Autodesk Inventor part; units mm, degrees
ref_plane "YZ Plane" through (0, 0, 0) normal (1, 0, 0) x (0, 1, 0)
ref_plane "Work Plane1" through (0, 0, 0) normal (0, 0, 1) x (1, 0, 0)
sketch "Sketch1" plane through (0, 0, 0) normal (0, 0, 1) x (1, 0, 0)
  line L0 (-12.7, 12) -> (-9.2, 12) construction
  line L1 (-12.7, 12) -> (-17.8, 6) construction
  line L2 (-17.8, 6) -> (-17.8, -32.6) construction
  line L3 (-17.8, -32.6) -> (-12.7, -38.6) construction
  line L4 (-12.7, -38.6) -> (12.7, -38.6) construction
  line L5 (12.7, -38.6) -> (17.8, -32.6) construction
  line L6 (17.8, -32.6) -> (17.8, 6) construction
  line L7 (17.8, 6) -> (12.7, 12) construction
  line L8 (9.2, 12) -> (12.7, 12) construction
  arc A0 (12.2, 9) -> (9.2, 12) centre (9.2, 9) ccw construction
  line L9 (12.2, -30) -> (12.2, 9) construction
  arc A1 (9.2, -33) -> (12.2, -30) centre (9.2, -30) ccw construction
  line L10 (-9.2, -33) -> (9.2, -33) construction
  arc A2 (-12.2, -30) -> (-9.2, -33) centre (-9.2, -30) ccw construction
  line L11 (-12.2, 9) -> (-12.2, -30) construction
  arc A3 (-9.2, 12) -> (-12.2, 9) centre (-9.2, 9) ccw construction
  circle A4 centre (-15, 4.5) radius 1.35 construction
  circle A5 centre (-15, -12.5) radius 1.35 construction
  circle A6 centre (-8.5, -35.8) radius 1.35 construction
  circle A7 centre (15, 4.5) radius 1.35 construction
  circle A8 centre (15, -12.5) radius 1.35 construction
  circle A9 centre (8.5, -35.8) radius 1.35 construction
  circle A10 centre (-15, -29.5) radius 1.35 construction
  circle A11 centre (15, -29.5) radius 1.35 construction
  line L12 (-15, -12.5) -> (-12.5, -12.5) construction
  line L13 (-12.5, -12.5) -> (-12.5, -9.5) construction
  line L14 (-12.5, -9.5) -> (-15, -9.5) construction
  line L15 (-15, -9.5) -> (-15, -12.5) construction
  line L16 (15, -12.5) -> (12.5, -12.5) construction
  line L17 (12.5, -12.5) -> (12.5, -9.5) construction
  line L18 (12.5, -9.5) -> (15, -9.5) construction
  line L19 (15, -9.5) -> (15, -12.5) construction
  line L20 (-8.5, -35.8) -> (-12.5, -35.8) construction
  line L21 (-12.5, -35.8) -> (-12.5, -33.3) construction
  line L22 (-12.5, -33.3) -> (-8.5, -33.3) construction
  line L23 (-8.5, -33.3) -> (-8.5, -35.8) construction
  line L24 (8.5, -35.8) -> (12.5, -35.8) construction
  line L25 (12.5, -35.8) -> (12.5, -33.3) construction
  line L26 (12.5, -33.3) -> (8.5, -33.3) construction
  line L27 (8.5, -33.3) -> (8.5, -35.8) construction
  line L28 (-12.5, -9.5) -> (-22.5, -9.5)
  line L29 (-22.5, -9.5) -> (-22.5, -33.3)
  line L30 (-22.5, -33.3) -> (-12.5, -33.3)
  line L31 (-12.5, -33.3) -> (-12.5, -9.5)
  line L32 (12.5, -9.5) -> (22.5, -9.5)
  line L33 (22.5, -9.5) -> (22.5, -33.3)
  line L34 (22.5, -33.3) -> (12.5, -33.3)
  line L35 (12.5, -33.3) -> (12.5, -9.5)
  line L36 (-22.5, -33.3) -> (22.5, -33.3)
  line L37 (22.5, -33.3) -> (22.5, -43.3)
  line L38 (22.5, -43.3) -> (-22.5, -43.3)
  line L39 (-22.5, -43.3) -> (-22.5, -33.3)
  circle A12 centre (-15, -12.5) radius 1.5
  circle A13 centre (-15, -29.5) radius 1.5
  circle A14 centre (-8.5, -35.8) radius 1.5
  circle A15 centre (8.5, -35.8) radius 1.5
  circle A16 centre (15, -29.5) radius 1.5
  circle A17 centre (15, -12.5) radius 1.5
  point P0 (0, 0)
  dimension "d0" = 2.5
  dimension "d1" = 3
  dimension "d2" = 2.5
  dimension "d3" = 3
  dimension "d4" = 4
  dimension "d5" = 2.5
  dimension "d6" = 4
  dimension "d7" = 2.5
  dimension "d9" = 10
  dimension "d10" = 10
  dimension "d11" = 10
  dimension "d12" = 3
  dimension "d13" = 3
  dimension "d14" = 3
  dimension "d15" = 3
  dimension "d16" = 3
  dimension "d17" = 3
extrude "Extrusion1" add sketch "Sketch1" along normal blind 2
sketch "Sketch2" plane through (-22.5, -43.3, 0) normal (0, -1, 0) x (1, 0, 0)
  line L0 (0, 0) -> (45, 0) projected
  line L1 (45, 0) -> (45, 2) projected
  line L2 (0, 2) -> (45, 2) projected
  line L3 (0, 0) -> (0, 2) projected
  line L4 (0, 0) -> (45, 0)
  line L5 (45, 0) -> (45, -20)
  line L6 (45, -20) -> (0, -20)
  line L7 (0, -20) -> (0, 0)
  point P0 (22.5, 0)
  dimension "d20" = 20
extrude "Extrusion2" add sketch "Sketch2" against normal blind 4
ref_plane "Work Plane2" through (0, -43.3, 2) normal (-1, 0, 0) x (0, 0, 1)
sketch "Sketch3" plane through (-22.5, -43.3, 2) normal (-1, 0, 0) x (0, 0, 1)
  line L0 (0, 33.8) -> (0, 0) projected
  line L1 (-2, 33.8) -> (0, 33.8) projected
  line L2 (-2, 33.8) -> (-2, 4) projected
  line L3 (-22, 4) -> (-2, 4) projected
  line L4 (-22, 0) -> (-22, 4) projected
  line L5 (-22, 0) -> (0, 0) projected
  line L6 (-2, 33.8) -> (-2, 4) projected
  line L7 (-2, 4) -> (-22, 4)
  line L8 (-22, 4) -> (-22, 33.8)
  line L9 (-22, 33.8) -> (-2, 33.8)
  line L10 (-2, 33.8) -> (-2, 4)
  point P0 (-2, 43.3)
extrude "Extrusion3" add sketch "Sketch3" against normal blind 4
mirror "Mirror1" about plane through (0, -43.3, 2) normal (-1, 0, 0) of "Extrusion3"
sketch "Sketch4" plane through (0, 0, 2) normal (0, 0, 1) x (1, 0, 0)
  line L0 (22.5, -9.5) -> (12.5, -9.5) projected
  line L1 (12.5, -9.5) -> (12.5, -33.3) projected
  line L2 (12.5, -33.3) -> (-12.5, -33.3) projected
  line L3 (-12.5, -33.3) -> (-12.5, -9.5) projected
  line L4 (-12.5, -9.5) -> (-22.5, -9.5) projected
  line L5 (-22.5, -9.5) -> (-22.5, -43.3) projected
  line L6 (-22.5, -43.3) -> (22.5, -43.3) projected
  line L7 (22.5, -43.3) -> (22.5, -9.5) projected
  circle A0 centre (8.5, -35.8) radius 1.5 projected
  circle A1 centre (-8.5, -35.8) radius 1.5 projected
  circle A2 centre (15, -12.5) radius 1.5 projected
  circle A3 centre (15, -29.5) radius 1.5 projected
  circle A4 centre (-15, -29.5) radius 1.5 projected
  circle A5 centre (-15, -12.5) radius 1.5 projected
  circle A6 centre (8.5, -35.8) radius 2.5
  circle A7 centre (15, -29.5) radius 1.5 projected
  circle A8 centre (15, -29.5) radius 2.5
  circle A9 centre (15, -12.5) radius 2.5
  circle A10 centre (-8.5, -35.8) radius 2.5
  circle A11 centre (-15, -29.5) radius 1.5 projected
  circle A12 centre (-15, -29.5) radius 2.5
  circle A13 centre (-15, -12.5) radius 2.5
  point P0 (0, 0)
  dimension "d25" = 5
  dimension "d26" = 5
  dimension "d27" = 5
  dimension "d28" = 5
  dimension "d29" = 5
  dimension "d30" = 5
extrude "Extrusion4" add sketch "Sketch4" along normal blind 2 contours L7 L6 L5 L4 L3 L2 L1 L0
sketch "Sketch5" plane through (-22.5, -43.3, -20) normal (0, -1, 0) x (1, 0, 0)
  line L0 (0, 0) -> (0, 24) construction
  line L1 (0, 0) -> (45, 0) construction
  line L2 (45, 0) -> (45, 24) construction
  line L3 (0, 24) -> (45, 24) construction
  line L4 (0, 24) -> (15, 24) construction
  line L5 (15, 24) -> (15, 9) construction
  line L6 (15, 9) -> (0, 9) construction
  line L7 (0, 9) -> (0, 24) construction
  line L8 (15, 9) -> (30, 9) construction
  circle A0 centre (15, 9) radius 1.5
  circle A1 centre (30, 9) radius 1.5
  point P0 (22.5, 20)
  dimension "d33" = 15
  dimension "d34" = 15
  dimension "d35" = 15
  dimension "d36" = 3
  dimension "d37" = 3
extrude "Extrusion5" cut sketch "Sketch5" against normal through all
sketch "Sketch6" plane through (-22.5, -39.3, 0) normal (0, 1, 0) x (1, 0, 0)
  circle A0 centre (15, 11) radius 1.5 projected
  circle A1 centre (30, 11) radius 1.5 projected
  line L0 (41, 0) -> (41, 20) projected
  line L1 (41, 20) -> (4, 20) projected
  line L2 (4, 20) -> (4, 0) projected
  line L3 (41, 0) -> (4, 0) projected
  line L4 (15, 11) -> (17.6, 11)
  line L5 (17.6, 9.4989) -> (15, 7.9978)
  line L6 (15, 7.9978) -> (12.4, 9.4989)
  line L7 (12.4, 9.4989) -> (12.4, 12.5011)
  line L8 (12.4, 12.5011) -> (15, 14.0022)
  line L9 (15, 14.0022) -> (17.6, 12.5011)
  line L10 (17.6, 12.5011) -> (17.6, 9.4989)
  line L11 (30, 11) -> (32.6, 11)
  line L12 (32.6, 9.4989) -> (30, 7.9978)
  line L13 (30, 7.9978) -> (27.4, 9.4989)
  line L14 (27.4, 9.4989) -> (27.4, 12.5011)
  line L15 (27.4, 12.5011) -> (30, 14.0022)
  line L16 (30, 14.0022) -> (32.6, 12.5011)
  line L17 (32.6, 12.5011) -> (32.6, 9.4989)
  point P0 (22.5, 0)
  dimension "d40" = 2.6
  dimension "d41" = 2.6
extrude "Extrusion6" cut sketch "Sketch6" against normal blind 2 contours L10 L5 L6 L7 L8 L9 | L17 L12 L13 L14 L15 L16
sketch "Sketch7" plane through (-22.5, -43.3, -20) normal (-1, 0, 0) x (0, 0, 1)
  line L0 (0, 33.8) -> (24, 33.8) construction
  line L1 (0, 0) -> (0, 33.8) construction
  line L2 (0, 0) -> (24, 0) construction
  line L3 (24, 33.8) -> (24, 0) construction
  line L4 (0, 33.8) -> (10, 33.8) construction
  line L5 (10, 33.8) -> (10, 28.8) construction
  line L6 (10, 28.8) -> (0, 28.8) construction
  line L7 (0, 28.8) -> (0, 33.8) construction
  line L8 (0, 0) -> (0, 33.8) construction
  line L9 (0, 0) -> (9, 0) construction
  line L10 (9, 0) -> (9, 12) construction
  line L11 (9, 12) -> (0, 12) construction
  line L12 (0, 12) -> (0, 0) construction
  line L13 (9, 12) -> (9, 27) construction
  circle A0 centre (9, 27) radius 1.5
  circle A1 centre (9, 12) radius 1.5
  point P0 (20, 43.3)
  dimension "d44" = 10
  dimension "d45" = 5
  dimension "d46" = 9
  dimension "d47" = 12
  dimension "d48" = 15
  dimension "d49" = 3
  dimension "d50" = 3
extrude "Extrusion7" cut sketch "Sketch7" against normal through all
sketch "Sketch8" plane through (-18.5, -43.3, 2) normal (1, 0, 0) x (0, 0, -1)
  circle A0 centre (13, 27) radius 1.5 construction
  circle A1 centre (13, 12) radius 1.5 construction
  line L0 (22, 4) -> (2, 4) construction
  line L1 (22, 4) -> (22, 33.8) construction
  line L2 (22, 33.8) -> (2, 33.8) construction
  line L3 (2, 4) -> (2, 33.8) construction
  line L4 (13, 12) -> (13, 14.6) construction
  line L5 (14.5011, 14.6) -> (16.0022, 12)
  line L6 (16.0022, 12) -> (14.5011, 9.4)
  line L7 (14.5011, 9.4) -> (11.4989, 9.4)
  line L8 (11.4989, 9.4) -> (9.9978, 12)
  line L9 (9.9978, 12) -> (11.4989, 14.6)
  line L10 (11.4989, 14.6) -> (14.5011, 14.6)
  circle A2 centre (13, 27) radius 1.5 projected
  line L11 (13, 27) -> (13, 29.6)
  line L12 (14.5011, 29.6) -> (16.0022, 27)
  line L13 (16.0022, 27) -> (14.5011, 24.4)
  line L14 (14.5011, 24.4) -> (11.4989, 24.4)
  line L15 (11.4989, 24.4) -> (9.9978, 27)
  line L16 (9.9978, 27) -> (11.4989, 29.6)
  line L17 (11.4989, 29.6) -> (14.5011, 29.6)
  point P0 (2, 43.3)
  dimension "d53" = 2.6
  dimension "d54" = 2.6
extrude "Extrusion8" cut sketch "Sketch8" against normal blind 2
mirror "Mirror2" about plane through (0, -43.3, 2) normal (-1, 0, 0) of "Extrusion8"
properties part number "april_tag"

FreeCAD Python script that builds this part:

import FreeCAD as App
import Part
import Sketcher
from FreeCAD import Vector
Q = App.Units.Quantity


def add_polygon(sketch, points):
    """Adds a closed chain of lines whose ends are joined by coincident constraints."""
    first, n = sketch.GeometryCount, len(points)
    for a, b in zip(points, points[1:] + points[:1]):
        sketch.addGeometry(Part.LineSegment(App.Vector(*a, 0), App.Vector(*b, 0)), False)
    for i in range(n):
        sketch.addConstraint(Sketcher.Constraint("Coincident", first + i, 2, first + (i + 1) % n, 1))

doc = App.newDocument("Part")
body = doc.addObject("PartDesign::Body", "Body")

sketch1 = body.newObject("Sketcher::SketchObject", "Sketch")
sketch1.AttachmentSupport = (doc.getObject("XY_Plane"), [""])
sketch1.MapMode = "FlatFace"
add_polygon(sketch1, [(-12.5, -33.3), (-12.5, -9.5), (-22.5, -9.5), (-22.5, -43.3), (22.5, -43.3), (22.5, -9.5), (12.5, -9.5), (12.5, -33.3)])
sketch1.addGeometry(Part.Circle(Vector(-15, -29.5, 0), Vector(0, 0, 1), 1.5), False)
sketch1.addGeometry(Part.Circle(Vector(-15, -12.5, 0), Vector(0, 0, 1), 1.5), False)
sketch1.addGeometry(Part.Circle(Vector(8.5, -35.8, 0), Vector(0, 0, 1), 1.5), False)
sketch1.addGeometry(Part.Circle(Vector(-8.5, -35.8, 0), Vector(0, 0, 1), 1.5), False)
sketch1.addGeometry(Part.Circle(Vector(15, -12.5, 0), Vector(0, 0, 1), 1.5), False)
sketch1.addGeometry(Part.Circle(Vector(15, -29.5, 0), Vector(0, 0, 1), 1.5), False)
sketch1.addConstraint(Sketcher.Constraint("Vertical", 0))
sketch1.addConstraint(Sketcher.Constraint("Horizontal", 1))
sketch1.addConstraint(Sketcher.Constraint("Vertical", 2))
sketch1.addConstraint(Sketcher.Constraint("Horizontal", 3))
sketch1.addConstraint(Sketcher.Constraint("Vertical", 4))
sketch1.addConstraint(Sketcher.Constraint("Horizontal", 5))
sketch1.addConstraint(Sketcher.Constraint("Vertical", 6))
sketch1.addConstraint(Sketcher.Constraint("Horizontal", 7))
sketch1.addConstraint(Sketcher.Constraint("Equal", 8, 9))
sketch1.addConstraint(Sketcher.Constraint("Equal", 9, 10))
sketch1.addConstraint(Sketcher.Constraint("Equal", 10, 11))
sketch1.addConstraint(Sketcher.Constraint("Equal", 11, 12))
sketch1.addConstraint(Sketcher.Constraint("Equal", 12, 13))
sketch1.addConstraint(Sketcher.Constraint("Symmetric", 10, 3, 11, 3, -2))
sketch1.addConstraint(Sketcher.Constraint("Symmetric", 9, 3, 12, 3, -2))
sketch1.addConstraint(Sketcher.Constraint("Symmetric", 8, 3, 13, 3, -2))
sketch1.addConstraint(Sketcher.Constraint("Symmetric", 1, 2, 4, 2, -2))
sketch1.addConstraint(Sketcher.Constraint("Vertical", 8, 3, 9, 3))
sketch1.addConstraint(Sketcher.Constraint("Equal", 1, 5))
sketch1.addConstraint(Sketcher.Constraint("Diameter", 8, Q("3 mm")))
sketch1.addConstraint(Sketcher.Constraint("DistanceX", 1, 2, 1, 1, Q("10 mm")))
sketch1.addConstraint(Sketcher.Constraint("DistanceY", 9, 3, 0, 2, Q("3 mm")))
sketch1.addConstraint(Sketcher.Constraint("DistanceX", 0, 2, 11, 3, Q("4 mm")))
sketch1.addConstraint(Sketcher.Constraint("DistanceY", 3, 2, 6, 2, Q("10 mm")))
sketch1.addConstraint(Sketcher.Constraint("DistanceX", 9, 3, 0, 2, Q("2.5 mm")))
sketch1.addConstraint(Sketcher.Constraint("DistanceY", 10, 3, 6, 2, Q("2.5 mm")))
sketch1.addConstraint(Sketcher.Constraint("DistanceX", 3, 1, 3, 2, Q("45 mm")))
sketch1.addConstraint(Sketcher.Constraint("DistanceY", 0, 1, 0, 2, Q("23.8 mm")))
sketch1.addConstraint(Sketcher.Constraint("DistanceY", 8, 3, 9, 3, Q("17 mm")))
sketch1.addConstraint(Sketcher.Constraint("DistanceY", 8, 3, -1, 1, Q("29.5 mm")))
pad1 = body.newObject("PartDesign::Pad", "Pad")
pad1.Profile = sketch1
pad1.Length = 2

sketch2 = body.newObject("Sketcher::SketchObject", "Sketch001")
sketch2.AttachmentSupport = (doc.getObject("XZ_Plane"), [""])
sketch2.MapMode = "FlatFace"
sketch2.AttachmentOffset = App.Placement(Vector(0, 0, 43.3), App.Rotation())
add_polygon(sketch2, [(-22, 2), (-22, -20), (22, -20), (22, 2)])
sketch2.addConstraint(Sketcher.Constraint("Vertical", 0))
sketch2.addConstraint(Sketcher.Constraint("Horizontal", 1))
sketch2.addConstraint(Sketcher.Constraint("Vertical", 2))
sketch2.addConstraint(Sketcher.Constraint("Horizontal", 3))
sketch2.addConstraint(Sketcher.Constraint("DistanceY", 0, 2, -1, 1, Q("20 mm")))
sketch2.addConstraint(Sketcher.Constraint("DistanceX", 1, 1, 1, 2, Q("45 mm")))
sketch2.addConstraint(Sketcher.Constraint("DistanceY", 0, 2, 0, 1, Q("22 mm")))
sketch2.addConstraint(Sketcher.Constraint("DistanceX", 0, 2, -1, 1, Q("22.5 mm")))
pad2 = body.newObject("PartDesign::Pad", "Pad001")
pad2.Profile = sketch2
pad2.Length = 4
pad2.Reversed = True

sketch3 = body.newObject("Sketcher::SketchObject", "Sketch002")
sketch3.AttachmentSupport = (doc.getObject("YZ_Plane"), [""])
sketch3.MapMode = "FlatFace"
sketch3.AttachmentOffset = App.Placement(Vector(0, 0, -22.5), App.Rotation())
add_polygon(sketch3, [(-43, 2), (-10, 2), (-10, -20), (-43, -20)])
sketch3.addConstraint(Sketcher.Constraint("Horizontal", 0))
sketch3.addConstraint(Sketcher.Constraint("Vertical", 1))
sketch3.addConstraint(Sketcher.Constraint("Horizontal", 2))
sketch3.addConstraint(Sketcher.Constraint("Vertical", 3))
sketch3.addConstraint(Sketcher.Constraint("DistanceY", 1, 2, 1, 1, Q("22 mm")))
sketch3.addConstraint(Sketcher.Constraint("DistanceX", 0, 1, 0, 2, Q("33.8 mm")))
sketch3.addConstraint(Sketcher.Constraint("DistanceY", -1, 1, 0, 2, Q("2 mm")))
sketch3.addConstraint(Sketcher.Constraint("DistanceX", 0, 2, -1, 1, Q("9.5 mm")))
pad3 = body.newObject("PartDesign::Pad", "Pad002")
pad3.Profile = sketch3
pad3.Length = 4
doc.recompute()

mirrored = body.newObject("PartDesign::Mirrored", "Mirrored")
mirrored.Originals = [pad3]
mirrored.MirrorPlane = (doc.getObject("YZ_Plane"), [""])
body.Tip = mirrored

sketch4 = body.newObject("Sketcher::SketchObject", "Sketch003")
sketch4.AttachmentSupport = (doc.getObject("XY_Plane"), [""])
sketch4.MapMode = "FlatFace"
sketch4.AttachmentOffset = App.Placement(Vector(0, 0, 2), App.Rotation())
add_polygon(sketch4, [(22.5, -43.3), (22.5, -9.5), (12.5, -9.5), (12.5, -12.5), (12.5, -29.5), (12.5, -33.3), (8.5, -33.3), (-8.5, -33.3), (-12.5, -33.3), (-12.5, -29.5), (-12.5, -12.5), (-12.5, -9.5), (-22.5, -9.5), (-22.5, -43.3)])
sketch4.addGeometry(Part.Circle(Vector(-8.5, -35.8, 0), Vector(0, 0, 1), 2.5), False)
sketch4.addGeometry(Part.Circle(Vector(-15, -29.5, 0), Vector(0, 0, 1), 2.5), False)
sketch4.addGeometry(Part.Circle(Vector(8.5, -35.8, 0), Vector(0, 0, 1), 2.5), False)
sketch4.addGeometry(Part.Circle(Vector(15, -29.5, 0), Vector(0, 0, 1), 2.5), False)
sketch4.addGeometry(Part.Circle(Vector(-15, -12.5, 0), Vector(0, 0, 1), 2.5), False)
sketch4.addGeometry(Part.Circle(Vector(15, -12.5, 0), Vector(0, 0, 1), 2.5), False)
sketch4.addConstraint(Sketcher.Constraint("Vertical", 0))
sketch4.addConstraint(Sketcher.Constraint("Horizontal", 1))
sketch4.addConstraint(Sketcher.Constraint("Vertical", 2))
sketch4.addConstraint(Sketcher.Constraint("Vertical", 3))
sketch4.addConstraint(Sketcher.Constraint("Vertical", 4))
sketch4.addConstraint(Sketcher.Constraint("Horizontal", 5))
sketch4.addConstraint(Sketcher.Constraint("Horizontal", 6))
sketch4.addConstraint(Sketcher.Constraint("Horizontal", 7))
sketch4.addConstraint(Sketcher.Constraint("Vertical", 8))
sketch4.addConstraint(Sketcher.Constraint("Vertical", 9))
sketch4.addConstraint(Sketcher.Constraint("Vertical", 10))
sketch4.addConstraint(Sketcher.Constraint("Horizontal", 11))
sketch4.addConstraint(Sketcher.Constraint("Vertical", 12))
sketch4.addConstraint(Sketcher.Constraint("Horizontal", 13))
sketch4.addConstraint(Sketcher.Constraint("Equal", 14, 15))
sketch4.addConstraint(Sketcher.Constraint("Equal", 15, 16))
sketch4.addConstraint(Sketcher.Constraint("Equal", 16, 17))
sketch4.addConstraint(Sketcher.Constraint("Equal", 17, 18))
sketch4.addConstraint(Sketcher.Constraint("Equal", 18, 19))
sketch4.addConstraint(Sketcher.Constraint("Symmetric", 14, 3, 16, 3, -2))
sketch4.addConstraint(Sketcher.Constraint("Symmetric", 15, 3, 17, 3, -2))
sketch4.addConstraint(Sketcher.Constraint("Symmetric", 18, 3, 19, 3, -2))
sketch4.addConstraint(Sketcher.Constraint("Symmetric", 3, 2, 8, 2, -2))
sketch4.addConstraint(Sketcher.Constraint("Symmetric", 0, 2, 11, 2, -2))
sketch4.addConstraint(Sketcher.Constraint("Horizontal", 19, 3, 2, 2))
sketch4.addConstraint(Sketcher.Constraint("Horizontal", 17, 3, 3, 2))
sketch4.addConstraint(Sketcher.Constraint("Horizontal", 2, 2, 9, 2))
sketch4.addConstraint(Sketcher.Constraint("Vertical", 15, 3, 18, 3))
sketch4.addConstraint(Sketcher.Constraint("Vertical", 16, 3, 5, 2))
sketch4.addConstraint(Sketcher.Constraint("Vertical", 14, 3, 6, 2))
sketch4.addConstraint(Sketcher.Constraint("Equal", 6, 3))
sketch4.addConstraint(Sketcher.Constraint("Diameter", 14, Q("5 mm")))
sketch4.addConstraint(Sketcher.Constraint("DistanceX", 1, 2, 1, 1, Q("10 mm")))
sketch4.addConstraint(Sketcher.Constraint("DistanceX", 5, 2, 5, 1, Q("4 mm")))
sketch4.addConstraint(Sketcher.Constraint("DistanceX", 6, 2, 6, 1, Q("17 mm")))
sketch4.addConstraint(Sketcher.Constraint("DistanceY", 2, 2, 2, 1, Q("3 mm")))
sketch4.addConstraint(Sketcher.Constraint("DistanceY", 0, 1, 0, 2, Q("33.8 mm")))
sketch4.addConstraint(Sketcher.Constraint("DistanceY", 4, 2, 4, 1, Q("3.8 mm")))
sketch4.addConstraint(Sketcher.Constraint("DistanceX", 15, 3, -1, 1, Q("15 mm")))
sketch4.addConstraint(Sketcher.Constraint("DistanceY", 14, 3, -1, 1, Q("35.8 mm")))
sketch4.addConstraint(Sketcher.Constraint("DistanceY", 15, 3, -1, 1, Q("29.5 mm")))
pad4 = body.newObject("PartDesign::Pad", "Pad003")
pad4.Profile = sketch4
pad4.Length = 2

sketch5 = body.newObject("Sketcher::SketchObject", "Sketch004")
sketch5.AttachmentSupport = (doc.getObject("XZ_Plane"), [""])
sketch5.MapMode = "FlatFace"
sketch5.AttachmentOffset = App.Placement(Vector(0, 0, 43.3), App.Rotation())
sketch5.addGeometry(Part.Circle(Vector(-7.5, -11, 0), Vector(0, 0, 1), 1.5), False)
sketch5.addGeometry(Part.Circle(Vector(7.5, -11, 0), Vector(0, 0, 1), 1.5), False)
sketch5.addConstraint(Sketcher.Constraint("Equal", 0, 1))
sketch5.addConstraint(Sketcher.Constraint("Symmetric", 0, 3, 1, 3, -2))
sketch5.addConstraint(Sketcher.Constraint("Diameter", 0, Q("3 mm")))
sketch5.addConstraint(Sketcher.Constraint("DistanceX", 0, 3, 1, 3, Q("15 mm")))
sketch5.addConstraint(Sketcher.Constraint("DistanceY", 0, 3, -1, 1, Q("11 mm")))
pocket1 = body.newObject("PartDesign::Pocket", "Pocket")
pocket1.Profile = sketch5
pocket1.Type = "ThroughAll"

sketch6 = body.newObject("Sketcher::SketchObject", "Sketch005")
sketch6.AttachmentSupport = (doc.getObject("XZ_Plane"), [""])
sketch6.MapMode = "FlatFace"
sketch6.AttachmentOffset = App.Placement(Vector(0, 0, 39.3), App.Rotation())
add_polygon(sketch6, [(-4.9, -9.5), (-4.9, -11), (-4.9, -12.5), (-7.5, -14), (-10.1, -12.5), (-10.1, -9.5), (-7.5, -8)])
sketch6.addGeometry(Part.Circle(Vector(-7.5, -11, 0), Vector(0, 0, 1), 1.5), False)
add_polygon(sketch6, [(10.1, -9.5), (10.1, -11), (10.1, -12.5), (7.5, -14), (4.9, -12.5), (4.9, -9.5), (7.5, -8)])
sketch6.addGeometry(Part.Circle(Vector(7.5, -11, 0), Vector(0, 0, 1), 1.5), False)
sketch6.addConstraint(Sketcher.Constraint("Vertical", 0))
sketch6.addConstraint(Sketcher.Constraint("Vertical", 1))
sketch6.addConstraint(Sketcher.Constraint("Vertical", 4))
sketch6.addConstraint(Sketcher.Constraint("Vertical", 8))
sketch6.addConstraint(Sketcher.Constraint("Vertical", 9))
sketch6.addConstraint(Sketcher.Constraint("Vertical", 12))
sketch6.addConstraint(Sketcher.Constraint("Equal", 7, 15))
sketch6.addConstraint(Sketcher.Constraint("Symmetric", 7, 3, 15, 3, -2))
sketch6.addConstraint(Sketcher.Constraint("Symmetric", 3, 2, 9, 2, -2))
sketch6.addConstraint(Sketcher.Constraint("Symmetric", 2, 2, 10, 2, -2))
sketch6.addConstraint(Sketcher.Constraint("Symmetric", 1, 2, 11, 2, -2))
sketch6.addConstraint(Sketcher.Constraint("Symmetric", 5, 2, 13, 2, -2))
sketch6.addConstraint(Sketcher.Constraint("Parallel", 2, 5))
sketch6.addConstraint(Sketcher.Constraint("Parallel", 3, 6))
sketch6.addConstraint(Sketcher.Constraint("Parallel", 5, 10))
sketch6.addConstraint(Sketcher.Constraint("Parallel", 10, 13))
sketch6.addConstraint(Sketcher.Constraint("Parallel", 11, 14))
sketch6.addConstraint(Sketcher.Constraint("Horizontal", 15, 3, 0, 2))
sketch6.addConstraint(Sketcher.Constraint("Horizontal", 1, 2, 3, 2))
sketch6.addConstraint(Sketcher.Constraint("Horizontal", 4, 2, 6, 2))
sketch6.addConstraint(Sketcher.Constraint("Horizontal", 0, 2, 8, 2))
sketch6.addConstraint(Sketcher.Constraint("Vertical", 7, 3, 2, 2))
sketch6.addConstraint(Sketcher.Constraint("Equal", 0, 1))
sketch6.addConstraint(Sketcher.Constraint("Diameter", 7, Q("3 mm")))
sketch6.addConstraint(Sketcher.Constraint("DistanceX", 7, 3, 0, 2, Q("2.6 mm")))
sketch6.addConstraint(Sketcher.Constraint("Angle", 2, Q("-150.0002 deg")))
sketch6.addConstraint(Sketcher.Constraint("DistanceY", 7, 3, -1, 1, Q("11 mm")))
sketch6.addConstraint(Sketcher.Constraint("DistanceX", 7, 3, 15, 3, Q("15 mm")))
sketch6.addConstraint(Sketcher.Constraint("DistanceY", 0, 2, 0, 1, Q("1.501 mm")))
pocket2 = body.newObject("PartDesign::Pocket", "Pocket001")
pocket2.Profile = sketch6
pocket2.Length = 2
pocket2.Reversed = True

sketch7 = body.newObject("Sketcher::SketchObject", "Sketch006")
sketch7.AttachmentSupport = (doc.getObject("YZ_Plane"), [""])
sketch7.MapMode = "FlatFace"
sketch7.AttachmentOffset = App.Placement(Vector(0, 0, -22.5), App.Rotation())
sketch7.addGeometry(Part.Circle(Vector(-16.3, -11, 0), Vector(0, 0, 1), 1.5), False)
sketch7.addGeometry(Part.Circle(Vector(-31.3, -11, 0), Vector(0, 0, 1), 1.5), False)
sketch7.addConstraint(Sketcher.Constraint("Equal", 0, 1))
sketch7.addConstraint(Sketcher.Constraint("Horizontal", 0, 3, 1, 3))
sketch7.addConstraint(Sketcher.Constraint("Diameter", 0, Q("3 mm")))
sketch7.addConstraint(Sketcher.Constraint("DistanceX", 1, 3, 0, 3, Q("15 mm")))
sketch7.addConstraint(Sketcher.Constraint("DistanceY", 0, 3, -1, 1, Q("11 mm")))
sketch7.addConstraint(Sketcher.Constraint("DistanceX", 0, 3, -1, 1, Q("16.3 mm")))
pocket3 = body.newObject("PartDesign::Pocket", "Pocket002")
pocket3.Profile = sketch7
pocket3.Type = "ThroughAll"
pocket3.Reversed = True

sketch8 = body.newObject("Sketcher::SketchObject", "Sketch007")
sketch8.AttachmentSupport = (doc.getObject("YZ_Plane"), [""])
sketch8.MapMode = "FlatFace"
sketch8.AttachmentOffset = App.Placement(Vector(0, 0, -18.5), App.Rotation())
add_polygon(sketch8, [(-31.3, -14), (-28.7, -12.5), (-28.7, -9.5), (-31.3, -8), (-33.9, -9.5), (-33.9, -12.5)])
add_polygon(sketch8, [(-13.7, -12.5), (-13.7, -11), (-13.7, -9.5), (-16.3, -8), (-18.9, -9.5), (-18.9, -12.5), (-16.3, -14)])
sketch8.addGeometry(Part.Circle(Vector(-16.3, -11, 0), Vector(0, 0, 1), 1.5), False)
sketch8.addConstraint(Sketcher.Constraint("Vertical", 1))
sketch8.addConstraint(Sketcher.Constraint("Vertical", 4))
sketch8.addConstraint(Sketcher.Constraint("Vertical", 6))
sketch8.addConstraint(Sketcher.Constraint("Vertical", 7))
sketch8.addConstraint(Sketcher.Constraint("Vertical", 10))
sketch8.addConstraint(Sketcher.Constraint("Parallel", 0, 3))
sketch8.addConstraint(Sketcher.Constraint("Parallel", 2, 5))
sketch8.addConstraint(Sketcher.Constraint("Parallel", 5, 8))
sketch8.addConstraint(Sketcher.Constraint("Parallel", 3, 9))
sketch8.addConstraint(Sketcher.Constraint("Parallel", 8, 11))
sketch8.addConstraint(Sketcher.Constraint("Parallel", 9, 12))
sketch8.addConstraint(Sketcher.Constraint("Horizontal", 1, 2, 3, 2))
sketch8.addConstraint(Sketcher.Constraint("Horizontal", 0, 2, 4, 2))
sketch8.addConstraint(Sketcher.Constraint("Horizontal", 13, 3, 6, 2))
sketch8.addConstraint(Sketcher.Constraint("Horizontal", 3, 2, 7, 2))
sketch8.addConstraint(Sketcher.Constraint("Horizontal", 2, 2, 8, 2))
sketch8.addConstraint(Sketcher.Constraint("Horizontal", 7, 2, 9, 2))
sketch8.addConstraint(Sketcher.Constraint("Horizontal", 4, 2, 10, 2))
sketch8.addConstraint(Sketcher.Constraint("Horizontal", 5, 2, 11, 2))
sketch8.addConstraint(Sketcher.Constraint("Vertical", 2, 2, 5, 2))
sketch8.addConstraint(Sketcher.Constraint("Vertical", 13, 3, 8, 2))
sketch8.addConstraint(Sketcher.Constraint("Equal", 6, 7))
sketch8.addConstraint(Sketcher.Constraint("Diameter", 13, Q("3 mm")))
sketch8.addConstraint(Sketcher.Constraint("DistanceX", 2, 2, 1, 2, Q("2.6 mm")))
sketch8.addConstraint(Sketcher.Constraint("Angle", 0, Q("29.9998 deg")))
sketch8.addConstraint(Sketcher.Constraint("DistanceY", 13, 3, -1, 1, Q("11 mm")))
sketch8.addConstraint(Sketcher.Constraint("DistanceX", 2, 2, 13, 3, Q("15 mm")))
sketch8.addConstraint(Sketcher.Constraint("DistanceX", 13, 3, -1, 1, Q("16.3 mm")))
sketch8.addConstraint(Sketcher.Constraint("DistanceY", 6, 1, 6, 2, Q("1.501 mm")))
pocket4 = body.newObject("PartDesign::Pocket", "Pocket003")
pocket4.Profile = sketch8
pocket4.Length = 2
doc.recompute()

mirrored2 = body.newObject("PartDesign::Mirrored", "Mirrored001")
mirrored2.Originals = [pocket4]
mirrored2.MirrorPlane = (doc.getObject("YZ_Plane"), [""])
body.Tip = mirrored2

doc.recompute()
